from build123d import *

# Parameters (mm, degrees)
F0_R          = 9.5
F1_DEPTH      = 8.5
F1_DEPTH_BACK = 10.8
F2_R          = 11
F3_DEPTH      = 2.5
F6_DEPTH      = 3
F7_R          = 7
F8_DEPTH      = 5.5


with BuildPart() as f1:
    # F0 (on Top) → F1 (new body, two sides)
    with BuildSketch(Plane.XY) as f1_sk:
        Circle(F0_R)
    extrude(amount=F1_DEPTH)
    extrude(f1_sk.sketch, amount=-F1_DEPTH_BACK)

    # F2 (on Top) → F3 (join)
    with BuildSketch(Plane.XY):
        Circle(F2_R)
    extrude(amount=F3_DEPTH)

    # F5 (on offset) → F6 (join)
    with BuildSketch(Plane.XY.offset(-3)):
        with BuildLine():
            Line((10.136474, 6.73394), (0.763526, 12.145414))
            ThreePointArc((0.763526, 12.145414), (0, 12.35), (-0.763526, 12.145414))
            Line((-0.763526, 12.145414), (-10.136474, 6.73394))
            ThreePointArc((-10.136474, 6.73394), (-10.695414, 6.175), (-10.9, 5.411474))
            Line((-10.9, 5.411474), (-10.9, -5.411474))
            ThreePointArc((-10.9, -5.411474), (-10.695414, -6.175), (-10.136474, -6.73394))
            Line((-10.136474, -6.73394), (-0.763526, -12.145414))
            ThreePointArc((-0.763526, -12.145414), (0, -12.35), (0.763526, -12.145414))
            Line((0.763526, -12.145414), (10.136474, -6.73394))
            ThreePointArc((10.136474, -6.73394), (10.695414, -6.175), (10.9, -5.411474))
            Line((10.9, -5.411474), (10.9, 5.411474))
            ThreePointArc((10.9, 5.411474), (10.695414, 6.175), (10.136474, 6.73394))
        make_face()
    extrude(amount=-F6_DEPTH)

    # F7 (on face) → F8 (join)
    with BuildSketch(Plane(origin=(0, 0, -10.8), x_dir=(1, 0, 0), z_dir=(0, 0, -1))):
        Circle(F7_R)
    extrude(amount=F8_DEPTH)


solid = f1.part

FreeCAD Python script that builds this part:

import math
import FreeCAD as App
import Part
import Sketcher

V = App.Vector
Q = App.Units.Quantity

doc = App.newDocument("Part")
body = doc.addObject("PartDesign::Body", "Body")

# Sketch on XY plane
sketch1 = body.newObject("Sketcher::SketchObject", "Sketch")
sketch1.AttachmentSupport = (doc.getObject("XY_Plane"), [""])
sketch1.MapMode = "FlatFace"
sketch1.addGeometry(Part.Circle(V(0, 0, 0), V(0, 0, 1), 10), False)
sketch1.addConstraint([
    Sketcher.Constraint("Coincident", 0, 3, -1, 1),
    Sketcher.Constraint("Diameter", 0, Q("19 mm")),
])
pad1 = body.newObject("PartDesign::Pad", "Pad")
pad1.Profile = sketch1
pad1.Type = "TwoLengths"
pad1.Length = 8.5
pad1.Length2 = 10.8

# Sketch on XY plane
sketch2 = body.newObject("Sketcher::SketchObject", "Sketch001")
sketch2.AttachmentSupport = (doc.getObject("XY_Plane"), [""])
sketch2.MapMode = "FlatFace"
sketch2.addGeometry(Part.Circle(V(0, 0, 0), V(0, 0, 1), 11), False)
sketch2.addConstraint([
    Sketcher.Constraint("Coincident", 0, 3, -1, 1),
    Sketcher.Constraint("Diameter", 0, Q("22 mm")),
])
pad2 = body.newObject("PartDesign::Pad", "Pad001")
pad2.Profile = sketch2
pad2.Length = 2.5

# Sketch on XY plane
sketch3 = body.newObject("Sketcher::SketchObject", "Sketch002")
sketch3.AttachmentSupport = (doc.getObject("XY_Plane"), [""])
sketch3.MapMode = "FlatFace"
sketch3.AttachmentOffset = App.Placement(V(0, 0, -3), App.Rotation())
sketch3.addGeometry([
    Part.LineSegment(V(10.1, 6.7, 0), V(0.8, 12.1, 0)),  # 0
    Part.ArcOfCircle(Part.Circle(V(0, 10.8, 0), V(0, 0, 1), 1.5), math.radians(60), math.radians(120)),  # 1
    Part.LineSegment(V(-0.8, 12.1, 0), V(-10.1, 6.7, 0)),  # 2
    Part.ArcOfCircle(Part.Circle(V(-9.4, 5.4, 0), V(0, 0, 1), 1.5), math.radians(120), math.radians(180)),  # 3
    Part.LineSegment(V(-10.9, 5.4, 0), V(-10.9, -5.4, 0)),  # 4
    Part.ArcOfCircle(Part.Circle(V(-9.4, -5.4, 0), V(0, 0, 1), 1.5), math.radians(180), math.radians(240)),  # 5
    Part.LineSegment(V(-10.1, -6.7, 0), V(-0.8, -12.1, 0)),  # 6
    Part.ArcOfCircle(Part.Circle(V(0, -10.8, 0), V(0, 0, 1), 1.5), math.radians(-120), math.radians(-60)),  # 7
    Part.LineSegment(V(0.8, -12.1, 0), V(10.1, -6.7, 0)),  # 8
    Part.ArcOfCircle(Part.Circle(V(9.4, -5.4, 0), V(0, 0, 1), 1.5), math.radians(-60), math.radians(0)),  # 9
    Part.LineSegment(V(10.9, -5.4, 0), V(10.9, 5.4, 0)),  # 10
    Part.ArcOfCircle(Part.Circle(V(9.4, 5.4, 0), V(0, 0, 1), 1.5), math.radians(0), math.radians(60)),  # 11
], False)
sketch3.addConstraint([
    Sketcher.Constraint("Tangent", 0, 2, 1, 1),
    Sketcher.Constraint("Tangent", 1, 2, 2, 1),
    Sketcher.Constraint("Tangent", 2, 2, 3, 1),
    Sketcher.Constraint("Tangent", 3, 2, 4, 1),
    Sketcher.Constraint("Tangent", 4, 2, 5, 1),
    Sketcher.Constraint("Tangent", 5, 2, 6, 1),
    Sketcher.Constraint("Tangent", 6, 2, 7, 1),
    Sketcher.Constraint("Tangent", 7, 2, 8, 1),
    Sketcher.Constraint("Tangent", 8, 2, 9, 1),
    Sketcher.Constraint("Tangent", 9, 2, 10, 1),
    Sketcher.Constraint("Tangent", 10, 2, 11, 1),
    Sketcher.Constraint("Tangent", 11, 2, 0, 1),
    Sketcher.Constraint("Vertical", 4),
    Sketcher.Constraint("Vertical", 10),
    Sketcher.Constraint("Equal", 1, 3),
    Sketcher.Constraint("Equal", 3, 5),
    Sketcher.Constraint("Equal", 5, 7),
    Sketcher.Constraint("Equal", 7, 9),
    Sketcher.Constraint("Equal", 9, 11),
    Sketcher.Constraint("Symmetric", 1, 3, 7, 3, -1, 1),
    Sketcher.Constraint("Symmetric", 3, 3, 9, 3, -1, 1),
    Sketcher.Constraint("Symmetric", 0, 2, 1, 2, -2),
    Sketcher.Constraint("Parallel", 0, 6),
    Sketcher.Constraint("Angle", 0, Q("150 deg")),
    Sketcher.Constraint("DistanceX", 3, 2, -1, 1, Q("10.9 mm")),
    Sketcher.Constraint("Radius", 3, Q("1.527052 mm")),
    Sketcher.Constraint("DistanceY", 4, 2, 4, 1, Q("10.822948 mm")),
])
pad3 = body.newObject("PartDesign::Pad", "Pad002")
pad3.Profile = sketch3
pad3.Length = 3
pad3.Reversed = True

# Sketch on XY plane
sketch4 = body.newObject("Sketcher::SketchObject", "Sketch003")
sketch4.AttachmentSupport = (doc.getObject("XY_Plane"), [""])
sketch4.MapMode = "FlatFace"
sketch4.AttachmentOffset = App.Placement(V(0, 0, -10.8), App.Rotation())
sketch4.addGeometry(Part.Circle(V(0, 0, 0), V(0, 0, 1), 7), False)
sketch4.addConstraint([
    Sketcher.Constraint("Coincident", 0, 3, -1, 1),
    Sketcher.Constraint("Diameter", 0, Q("14 mm")),
])
pad4 = body.newObject("PartDesign::Pad", "Pad003")
pad4.Profile = sketch4
pad4.Length = 5.5
pad4.Reversed = True

doc.recompute()
